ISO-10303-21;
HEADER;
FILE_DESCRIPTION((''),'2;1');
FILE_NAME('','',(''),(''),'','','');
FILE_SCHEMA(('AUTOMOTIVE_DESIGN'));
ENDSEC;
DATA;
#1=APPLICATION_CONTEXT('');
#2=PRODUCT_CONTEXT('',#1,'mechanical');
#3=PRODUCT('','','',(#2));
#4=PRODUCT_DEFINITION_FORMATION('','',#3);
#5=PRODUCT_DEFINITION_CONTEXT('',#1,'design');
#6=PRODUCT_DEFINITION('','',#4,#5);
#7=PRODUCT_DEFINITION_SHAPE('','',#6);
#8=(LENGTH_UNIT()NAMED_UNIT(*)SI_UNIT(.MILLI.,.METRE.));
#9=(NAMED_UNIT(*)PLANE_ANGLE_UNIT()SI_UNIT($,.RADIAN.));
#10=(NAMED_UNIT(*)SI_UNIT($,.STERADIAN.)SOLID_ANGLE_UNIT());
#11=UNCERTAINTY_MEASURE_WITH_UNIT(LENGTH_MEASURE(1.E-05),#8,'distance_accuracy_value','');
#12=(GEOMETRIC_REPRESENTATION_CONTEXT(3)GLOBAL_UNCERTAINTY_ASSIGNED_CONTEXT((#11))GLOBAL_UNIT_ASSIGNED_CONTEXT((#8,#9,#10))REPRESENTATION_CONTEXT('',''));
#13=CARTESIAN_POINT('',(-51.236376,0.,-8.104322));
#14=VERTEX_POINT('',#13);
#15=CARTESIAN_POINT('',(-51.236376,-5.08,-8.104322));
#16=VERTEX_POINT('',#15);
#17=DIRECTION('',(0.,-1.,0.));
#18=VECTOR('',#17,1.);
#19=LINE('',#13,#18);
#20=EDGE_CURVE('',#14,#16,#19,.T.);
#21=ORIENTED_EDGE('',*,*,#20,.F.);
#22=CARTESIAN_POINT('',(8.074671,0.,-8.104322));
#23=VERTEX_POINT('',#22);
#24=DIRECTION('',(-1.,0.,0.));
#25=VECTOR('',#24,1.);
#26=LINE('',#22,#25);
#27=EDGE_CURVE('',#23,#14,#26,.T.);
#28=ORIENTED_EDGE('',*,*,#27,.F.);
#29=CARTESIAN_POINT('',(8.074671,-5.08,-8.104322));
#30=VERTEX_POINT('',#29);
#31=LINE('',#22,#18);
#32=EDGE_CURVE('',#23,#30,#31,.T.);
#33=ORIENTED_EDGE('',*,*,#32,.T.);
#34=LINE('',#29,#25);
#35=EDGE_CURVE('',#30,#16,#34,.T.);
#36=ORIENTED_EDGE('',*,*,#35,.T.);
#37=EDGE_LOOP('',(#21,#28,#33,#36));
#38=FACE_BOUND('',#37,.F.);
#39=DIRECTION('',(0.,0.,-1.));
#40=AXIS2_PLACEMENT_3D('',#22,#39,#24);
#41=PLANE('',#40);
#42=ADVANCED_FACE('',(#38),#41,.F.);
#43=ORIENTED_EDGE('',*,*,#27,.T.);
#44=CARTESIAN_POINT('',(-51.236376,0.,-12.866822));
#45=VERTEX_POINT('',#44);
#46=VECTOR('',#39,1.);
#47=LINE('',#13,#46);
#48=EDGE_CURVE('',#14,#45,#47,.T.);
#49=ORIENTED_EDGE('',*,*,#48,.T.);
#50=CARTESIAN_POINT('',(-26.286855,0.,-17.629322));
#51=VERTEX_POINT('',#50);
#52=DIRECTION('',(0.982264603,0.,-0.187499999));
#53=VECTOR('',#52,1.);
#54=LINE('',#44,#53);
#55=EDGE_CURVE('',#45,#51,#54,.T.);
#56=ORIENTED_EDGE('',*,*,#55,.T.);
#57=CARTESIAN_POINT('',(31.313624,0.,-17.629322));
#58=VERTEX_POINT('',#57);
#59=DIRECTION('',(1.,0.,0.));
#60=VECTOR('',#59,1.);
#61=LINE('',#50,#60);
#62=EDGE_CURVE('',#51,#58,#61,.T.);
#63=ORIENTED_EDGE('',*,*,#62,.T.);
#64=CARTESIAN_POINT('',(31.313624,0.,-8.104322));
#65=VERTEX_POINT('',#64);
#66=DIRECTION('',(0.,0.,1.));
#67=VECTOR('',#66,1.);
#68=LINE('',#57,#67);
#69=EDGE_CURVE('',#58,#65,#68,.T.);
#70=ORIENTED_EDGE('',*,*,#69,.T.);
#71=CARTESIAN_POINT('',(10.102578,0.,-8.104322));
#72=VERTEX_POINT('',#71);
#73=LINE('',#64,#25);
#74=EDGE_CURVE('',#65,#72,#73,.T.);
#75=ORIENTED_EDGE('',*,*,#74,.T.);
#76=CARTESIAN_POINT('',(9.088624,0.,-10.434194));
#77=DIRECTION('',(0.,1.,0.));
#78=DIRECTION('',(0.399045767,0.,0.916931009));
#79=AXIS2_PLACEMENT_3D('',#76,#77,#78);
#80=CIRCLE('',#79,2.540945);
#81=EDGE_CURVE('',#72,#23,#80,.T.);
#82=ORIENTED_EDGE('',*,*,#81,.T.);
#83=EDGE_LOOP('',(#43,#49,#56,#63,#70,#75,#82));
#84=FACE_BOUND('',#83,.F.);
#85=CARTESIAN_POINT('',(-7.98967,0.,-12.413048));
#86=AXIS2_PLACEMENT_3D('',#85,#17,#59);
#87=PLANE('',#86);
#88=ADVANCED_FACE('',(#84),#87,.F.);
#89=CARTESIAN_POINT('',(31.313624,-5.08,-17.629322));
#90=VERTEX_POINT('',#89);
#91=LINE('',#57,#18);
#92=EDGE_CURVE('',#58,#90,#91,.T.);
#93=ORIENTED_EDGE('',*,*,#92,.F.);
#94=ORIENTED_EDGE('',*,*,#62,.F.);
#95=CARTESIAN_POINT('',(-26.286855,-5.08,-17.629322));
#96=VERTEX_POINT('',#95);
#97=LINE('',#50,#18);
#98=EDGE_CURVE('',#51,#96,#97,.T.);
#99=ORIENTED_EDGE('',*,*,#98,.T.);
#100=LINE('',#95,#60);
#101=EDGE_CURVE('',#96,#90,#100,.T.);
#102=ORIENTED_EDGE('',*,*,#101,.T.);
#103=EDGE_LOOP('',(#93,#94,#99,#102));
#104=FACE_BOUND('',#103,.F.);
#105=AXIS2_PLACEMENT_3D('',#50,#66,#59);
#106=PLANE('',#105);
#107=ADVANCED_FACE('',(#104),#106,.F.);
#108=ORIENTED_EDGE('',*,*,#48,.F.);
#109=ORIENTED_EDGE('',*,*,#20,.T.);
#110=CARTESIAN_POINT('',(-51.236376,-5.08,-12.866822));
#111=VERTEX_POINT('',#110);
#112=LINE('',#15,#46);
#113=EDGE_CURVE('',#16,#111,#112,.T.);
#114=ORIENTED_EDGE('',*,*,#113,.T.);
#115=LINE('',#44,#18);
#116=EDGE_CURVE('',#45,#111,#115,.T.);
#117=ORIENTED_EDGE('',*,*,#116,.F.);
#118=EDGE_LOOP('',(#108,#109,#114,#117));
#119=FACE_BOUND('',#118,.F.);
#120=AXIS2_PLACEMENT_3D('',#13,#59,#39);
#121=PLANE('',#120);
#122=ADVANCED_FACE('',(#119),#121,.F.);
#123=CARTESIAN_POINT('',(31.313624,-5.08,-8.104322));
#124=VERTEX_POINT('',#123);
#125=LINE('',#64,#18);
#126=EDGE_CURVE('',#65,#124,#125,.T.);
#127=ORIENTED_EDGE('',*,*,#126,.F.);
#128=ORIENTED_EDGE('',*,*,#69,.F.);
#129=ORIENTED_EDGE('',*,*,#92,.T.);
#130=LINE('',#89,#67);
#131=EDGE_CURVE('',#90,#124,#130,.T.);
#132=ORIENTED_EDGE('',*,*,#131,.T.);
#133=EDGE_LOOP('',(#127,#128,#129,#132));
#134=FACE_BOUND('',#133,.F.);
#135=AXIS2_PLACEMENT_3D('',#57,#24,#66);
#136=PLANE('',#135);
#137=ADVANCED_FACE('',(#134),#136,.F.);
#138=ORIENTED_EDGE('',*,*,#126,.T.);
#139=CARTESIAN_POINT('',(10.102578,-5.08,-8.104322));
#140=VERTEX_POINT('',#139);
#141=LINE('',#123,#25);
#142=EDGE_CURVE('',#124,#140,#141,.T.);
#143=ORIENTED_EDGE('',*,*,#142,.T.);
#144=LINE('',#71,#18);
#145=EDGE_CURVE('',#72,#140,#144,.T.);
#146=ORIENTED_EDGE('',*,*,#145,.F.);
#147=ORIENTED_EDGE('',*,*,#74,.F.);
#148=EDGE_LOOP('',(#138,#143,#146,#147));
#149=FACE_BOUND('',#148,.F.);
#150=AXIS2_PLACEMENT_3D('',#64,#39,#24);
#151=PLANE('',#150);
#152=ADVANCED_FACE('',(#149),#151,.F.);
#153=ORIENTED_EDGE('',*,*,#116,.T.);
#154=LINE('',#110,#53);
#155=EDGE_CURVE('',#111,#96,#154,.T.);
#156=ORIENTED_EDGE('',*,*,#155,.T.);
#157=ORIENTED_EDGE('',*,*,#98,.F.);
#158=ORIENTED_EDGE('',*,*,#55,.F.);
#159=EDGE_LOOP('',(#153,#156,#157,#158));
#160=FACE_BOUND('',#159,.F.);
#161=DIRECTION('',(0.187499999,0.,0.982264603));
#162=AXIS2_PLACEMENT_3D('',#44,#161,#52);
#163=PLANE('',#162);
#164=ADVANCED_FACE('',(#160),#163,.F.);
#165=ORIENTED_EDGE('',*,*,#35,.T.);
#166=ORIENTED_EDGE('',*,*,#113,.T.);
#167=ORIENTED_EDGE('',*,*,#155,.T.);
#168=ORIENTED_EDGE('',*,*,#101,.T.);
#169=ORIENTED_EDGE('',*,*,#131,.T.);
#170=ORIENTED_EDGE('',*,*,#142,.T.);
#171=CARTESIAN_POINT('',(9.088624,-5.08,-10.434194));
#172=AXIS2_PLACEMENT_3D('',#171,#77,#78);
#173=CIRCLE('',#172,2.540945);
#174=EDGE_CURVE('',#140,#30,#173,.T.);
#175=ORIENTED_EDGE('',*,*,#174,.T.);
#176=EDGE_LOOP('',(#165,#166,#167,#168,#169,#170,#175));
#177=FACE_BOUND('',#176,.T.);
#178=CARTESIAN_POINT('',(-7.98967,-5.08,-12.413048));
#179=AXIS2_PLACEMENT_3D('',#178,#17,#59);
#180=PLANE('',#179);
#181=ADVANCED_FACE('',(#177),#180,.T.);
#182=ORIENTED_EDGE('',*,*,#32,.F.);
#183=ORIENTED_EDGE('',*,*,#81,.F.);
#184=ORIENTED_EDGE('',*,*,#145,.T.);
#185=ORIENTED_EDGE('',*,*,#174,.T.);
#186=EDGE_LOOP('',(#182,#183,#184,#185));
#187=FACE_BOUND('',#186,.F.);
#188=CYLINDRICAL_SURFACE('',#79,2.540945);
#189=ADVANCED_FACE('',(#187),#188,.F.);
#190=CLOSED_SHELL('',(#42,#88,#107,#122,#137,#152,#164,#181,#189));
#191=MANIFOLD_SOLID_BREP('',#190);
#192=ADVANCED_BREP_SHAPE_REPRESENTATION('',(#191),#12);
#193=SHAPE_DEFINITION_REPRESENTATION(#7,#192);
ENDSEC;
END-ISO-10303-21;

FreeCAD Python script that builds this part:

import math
import FreeCAD as App
import Part
import Sketcher

V = App.Vector
Q = App.Units.Quantity

doc = App.newDocument("Part")
params = doc.addObject("Spreadsheet::Sheet", "Params")
for row, (alias, value) in enumerate([
    ("sketch1_length", "1 in"),
    ("sketch1_height", "0.1875 in"),
    ("sketch1_height2", "0.375 in"),
    ("pad1_length", "0.2 in"),
], start=1):
    params.set(f"A{row}", alias)
    params.set(f"B{row}", "=" + value)
    params.setAlias(f"B{row}", alias)

body = doc.addObject("PartDesign::Body", "Body")

# Sketch on XZ plane
sketch1 = body.newObject("Sketcher::SketchObject", "Sketch")
sketch1.AttachmentSupport = (doc.getObject("XZ_Plane"), [""])
sketch1.MapMode = "FlatFace"
sketch1.addGeometry([
    Part.LineSegment(V(8.1, -8.1, 0), V(-51.2, -8.1, 0)),  # 0
    Part.LineSegment(V(-51.2, -8.1, 0), V(-51.2, -12.9, 0)),  # 1
    Part.LineSegment(V(-51.2, -12.9, 0), V(-26.3, -17.6, 0)),  # 2
    Part.LineSegment(V(-26.3, -17.6, 0), V(31.3, -17.6, 0)),  # 3
    Part.LineSegment(V(31.3, -17.6, 0), V(31.3, -8.1, 0)),  # 4
    Part.LineSegment(V(31.3, -8.1, 0), V(10.1, -8.1, 0)),  # 5
    Part.ArcOfCircle(Part.Circle(V(9.1, -10.4, 0), V(0, 0, 1), 2.5), math.radians(114), math.radians(426)),  # 6
], False)
sketch1.addConstraint([
    Sketcher.Constraint("Coincident", 0, 2, 1, 1),
    Sketcher.Constraint("Coincident", 1, 2, 2, 1),
    Sketcher.Constraint("Coincident", 2, 2, 3, 1),
    Sketcher.Constraint("Coincident", 3, 2, 4, 1),
    Sketcher.Constraint("Coincident", 4, 2, 5, 1),
    Sketcher.Constraint("Coincident", 5, 2, 6, 2),
    Sketcher.Constraint("Coincident", 6, 1, 0, 1),
    Sketcher.Constraint("Horizontal", 0),
    Sketcher.Constraint("Vertical", 1),
    Sketcher.Constraint("Horizontal", 3),
    Sketcher.Constraint("Vertical", 4),
    Sketcher.Constraint("Horizontal", 5),
    Sketcher.Constraint("Horizontal", 0, 2, 4, 2),
    Sketcher.Constraint("Distance", 2, Q("1 in")),
    Sketcher.Constraint("DistanceY", 1, 2, 1, 1, Q("0.1875 in")),
    Sketcher.Constraint("DistanceY", 4, 1, 4, 2, Q("0.375 in")),
    Sketcher.Constraint("DistanceX", 1, 2, 3, 2, Q("3.25 in")),
    Sketcher.Constraint("DistanceX", 0, 2, 6, 3, Q("2.375 in")),
    Sketcher.Constraint("Radius", 6, Q("2.540945 mm")),
    Sketcher.Constraint("DistanceX", 0, 2, 0, 1, Q("59.311047 mm")),
    Sketcher.Constraint("DistanceY", 2, 2, -1, 1, Q("17.629322 mm")),
    Sketcher.Constraint("DistanceX", -1, 1, 6, 1, Q("8.074671 mm")),
])
sketch1.setExpression("Constraints[13]", "Params.sketch1_length")
sketch1.setExpression("Constraints[14]", "Params.sketch1_height")
sketch1.setExpression("Constraints[15]", "Params.sketch1_height2")
pad1 = body.newObject("PartDesign::Pad", "Pad")
pad1.Profile = sketch1
pad1.setExpression("Length", "Params.pad1_length")

doc.recompute()
